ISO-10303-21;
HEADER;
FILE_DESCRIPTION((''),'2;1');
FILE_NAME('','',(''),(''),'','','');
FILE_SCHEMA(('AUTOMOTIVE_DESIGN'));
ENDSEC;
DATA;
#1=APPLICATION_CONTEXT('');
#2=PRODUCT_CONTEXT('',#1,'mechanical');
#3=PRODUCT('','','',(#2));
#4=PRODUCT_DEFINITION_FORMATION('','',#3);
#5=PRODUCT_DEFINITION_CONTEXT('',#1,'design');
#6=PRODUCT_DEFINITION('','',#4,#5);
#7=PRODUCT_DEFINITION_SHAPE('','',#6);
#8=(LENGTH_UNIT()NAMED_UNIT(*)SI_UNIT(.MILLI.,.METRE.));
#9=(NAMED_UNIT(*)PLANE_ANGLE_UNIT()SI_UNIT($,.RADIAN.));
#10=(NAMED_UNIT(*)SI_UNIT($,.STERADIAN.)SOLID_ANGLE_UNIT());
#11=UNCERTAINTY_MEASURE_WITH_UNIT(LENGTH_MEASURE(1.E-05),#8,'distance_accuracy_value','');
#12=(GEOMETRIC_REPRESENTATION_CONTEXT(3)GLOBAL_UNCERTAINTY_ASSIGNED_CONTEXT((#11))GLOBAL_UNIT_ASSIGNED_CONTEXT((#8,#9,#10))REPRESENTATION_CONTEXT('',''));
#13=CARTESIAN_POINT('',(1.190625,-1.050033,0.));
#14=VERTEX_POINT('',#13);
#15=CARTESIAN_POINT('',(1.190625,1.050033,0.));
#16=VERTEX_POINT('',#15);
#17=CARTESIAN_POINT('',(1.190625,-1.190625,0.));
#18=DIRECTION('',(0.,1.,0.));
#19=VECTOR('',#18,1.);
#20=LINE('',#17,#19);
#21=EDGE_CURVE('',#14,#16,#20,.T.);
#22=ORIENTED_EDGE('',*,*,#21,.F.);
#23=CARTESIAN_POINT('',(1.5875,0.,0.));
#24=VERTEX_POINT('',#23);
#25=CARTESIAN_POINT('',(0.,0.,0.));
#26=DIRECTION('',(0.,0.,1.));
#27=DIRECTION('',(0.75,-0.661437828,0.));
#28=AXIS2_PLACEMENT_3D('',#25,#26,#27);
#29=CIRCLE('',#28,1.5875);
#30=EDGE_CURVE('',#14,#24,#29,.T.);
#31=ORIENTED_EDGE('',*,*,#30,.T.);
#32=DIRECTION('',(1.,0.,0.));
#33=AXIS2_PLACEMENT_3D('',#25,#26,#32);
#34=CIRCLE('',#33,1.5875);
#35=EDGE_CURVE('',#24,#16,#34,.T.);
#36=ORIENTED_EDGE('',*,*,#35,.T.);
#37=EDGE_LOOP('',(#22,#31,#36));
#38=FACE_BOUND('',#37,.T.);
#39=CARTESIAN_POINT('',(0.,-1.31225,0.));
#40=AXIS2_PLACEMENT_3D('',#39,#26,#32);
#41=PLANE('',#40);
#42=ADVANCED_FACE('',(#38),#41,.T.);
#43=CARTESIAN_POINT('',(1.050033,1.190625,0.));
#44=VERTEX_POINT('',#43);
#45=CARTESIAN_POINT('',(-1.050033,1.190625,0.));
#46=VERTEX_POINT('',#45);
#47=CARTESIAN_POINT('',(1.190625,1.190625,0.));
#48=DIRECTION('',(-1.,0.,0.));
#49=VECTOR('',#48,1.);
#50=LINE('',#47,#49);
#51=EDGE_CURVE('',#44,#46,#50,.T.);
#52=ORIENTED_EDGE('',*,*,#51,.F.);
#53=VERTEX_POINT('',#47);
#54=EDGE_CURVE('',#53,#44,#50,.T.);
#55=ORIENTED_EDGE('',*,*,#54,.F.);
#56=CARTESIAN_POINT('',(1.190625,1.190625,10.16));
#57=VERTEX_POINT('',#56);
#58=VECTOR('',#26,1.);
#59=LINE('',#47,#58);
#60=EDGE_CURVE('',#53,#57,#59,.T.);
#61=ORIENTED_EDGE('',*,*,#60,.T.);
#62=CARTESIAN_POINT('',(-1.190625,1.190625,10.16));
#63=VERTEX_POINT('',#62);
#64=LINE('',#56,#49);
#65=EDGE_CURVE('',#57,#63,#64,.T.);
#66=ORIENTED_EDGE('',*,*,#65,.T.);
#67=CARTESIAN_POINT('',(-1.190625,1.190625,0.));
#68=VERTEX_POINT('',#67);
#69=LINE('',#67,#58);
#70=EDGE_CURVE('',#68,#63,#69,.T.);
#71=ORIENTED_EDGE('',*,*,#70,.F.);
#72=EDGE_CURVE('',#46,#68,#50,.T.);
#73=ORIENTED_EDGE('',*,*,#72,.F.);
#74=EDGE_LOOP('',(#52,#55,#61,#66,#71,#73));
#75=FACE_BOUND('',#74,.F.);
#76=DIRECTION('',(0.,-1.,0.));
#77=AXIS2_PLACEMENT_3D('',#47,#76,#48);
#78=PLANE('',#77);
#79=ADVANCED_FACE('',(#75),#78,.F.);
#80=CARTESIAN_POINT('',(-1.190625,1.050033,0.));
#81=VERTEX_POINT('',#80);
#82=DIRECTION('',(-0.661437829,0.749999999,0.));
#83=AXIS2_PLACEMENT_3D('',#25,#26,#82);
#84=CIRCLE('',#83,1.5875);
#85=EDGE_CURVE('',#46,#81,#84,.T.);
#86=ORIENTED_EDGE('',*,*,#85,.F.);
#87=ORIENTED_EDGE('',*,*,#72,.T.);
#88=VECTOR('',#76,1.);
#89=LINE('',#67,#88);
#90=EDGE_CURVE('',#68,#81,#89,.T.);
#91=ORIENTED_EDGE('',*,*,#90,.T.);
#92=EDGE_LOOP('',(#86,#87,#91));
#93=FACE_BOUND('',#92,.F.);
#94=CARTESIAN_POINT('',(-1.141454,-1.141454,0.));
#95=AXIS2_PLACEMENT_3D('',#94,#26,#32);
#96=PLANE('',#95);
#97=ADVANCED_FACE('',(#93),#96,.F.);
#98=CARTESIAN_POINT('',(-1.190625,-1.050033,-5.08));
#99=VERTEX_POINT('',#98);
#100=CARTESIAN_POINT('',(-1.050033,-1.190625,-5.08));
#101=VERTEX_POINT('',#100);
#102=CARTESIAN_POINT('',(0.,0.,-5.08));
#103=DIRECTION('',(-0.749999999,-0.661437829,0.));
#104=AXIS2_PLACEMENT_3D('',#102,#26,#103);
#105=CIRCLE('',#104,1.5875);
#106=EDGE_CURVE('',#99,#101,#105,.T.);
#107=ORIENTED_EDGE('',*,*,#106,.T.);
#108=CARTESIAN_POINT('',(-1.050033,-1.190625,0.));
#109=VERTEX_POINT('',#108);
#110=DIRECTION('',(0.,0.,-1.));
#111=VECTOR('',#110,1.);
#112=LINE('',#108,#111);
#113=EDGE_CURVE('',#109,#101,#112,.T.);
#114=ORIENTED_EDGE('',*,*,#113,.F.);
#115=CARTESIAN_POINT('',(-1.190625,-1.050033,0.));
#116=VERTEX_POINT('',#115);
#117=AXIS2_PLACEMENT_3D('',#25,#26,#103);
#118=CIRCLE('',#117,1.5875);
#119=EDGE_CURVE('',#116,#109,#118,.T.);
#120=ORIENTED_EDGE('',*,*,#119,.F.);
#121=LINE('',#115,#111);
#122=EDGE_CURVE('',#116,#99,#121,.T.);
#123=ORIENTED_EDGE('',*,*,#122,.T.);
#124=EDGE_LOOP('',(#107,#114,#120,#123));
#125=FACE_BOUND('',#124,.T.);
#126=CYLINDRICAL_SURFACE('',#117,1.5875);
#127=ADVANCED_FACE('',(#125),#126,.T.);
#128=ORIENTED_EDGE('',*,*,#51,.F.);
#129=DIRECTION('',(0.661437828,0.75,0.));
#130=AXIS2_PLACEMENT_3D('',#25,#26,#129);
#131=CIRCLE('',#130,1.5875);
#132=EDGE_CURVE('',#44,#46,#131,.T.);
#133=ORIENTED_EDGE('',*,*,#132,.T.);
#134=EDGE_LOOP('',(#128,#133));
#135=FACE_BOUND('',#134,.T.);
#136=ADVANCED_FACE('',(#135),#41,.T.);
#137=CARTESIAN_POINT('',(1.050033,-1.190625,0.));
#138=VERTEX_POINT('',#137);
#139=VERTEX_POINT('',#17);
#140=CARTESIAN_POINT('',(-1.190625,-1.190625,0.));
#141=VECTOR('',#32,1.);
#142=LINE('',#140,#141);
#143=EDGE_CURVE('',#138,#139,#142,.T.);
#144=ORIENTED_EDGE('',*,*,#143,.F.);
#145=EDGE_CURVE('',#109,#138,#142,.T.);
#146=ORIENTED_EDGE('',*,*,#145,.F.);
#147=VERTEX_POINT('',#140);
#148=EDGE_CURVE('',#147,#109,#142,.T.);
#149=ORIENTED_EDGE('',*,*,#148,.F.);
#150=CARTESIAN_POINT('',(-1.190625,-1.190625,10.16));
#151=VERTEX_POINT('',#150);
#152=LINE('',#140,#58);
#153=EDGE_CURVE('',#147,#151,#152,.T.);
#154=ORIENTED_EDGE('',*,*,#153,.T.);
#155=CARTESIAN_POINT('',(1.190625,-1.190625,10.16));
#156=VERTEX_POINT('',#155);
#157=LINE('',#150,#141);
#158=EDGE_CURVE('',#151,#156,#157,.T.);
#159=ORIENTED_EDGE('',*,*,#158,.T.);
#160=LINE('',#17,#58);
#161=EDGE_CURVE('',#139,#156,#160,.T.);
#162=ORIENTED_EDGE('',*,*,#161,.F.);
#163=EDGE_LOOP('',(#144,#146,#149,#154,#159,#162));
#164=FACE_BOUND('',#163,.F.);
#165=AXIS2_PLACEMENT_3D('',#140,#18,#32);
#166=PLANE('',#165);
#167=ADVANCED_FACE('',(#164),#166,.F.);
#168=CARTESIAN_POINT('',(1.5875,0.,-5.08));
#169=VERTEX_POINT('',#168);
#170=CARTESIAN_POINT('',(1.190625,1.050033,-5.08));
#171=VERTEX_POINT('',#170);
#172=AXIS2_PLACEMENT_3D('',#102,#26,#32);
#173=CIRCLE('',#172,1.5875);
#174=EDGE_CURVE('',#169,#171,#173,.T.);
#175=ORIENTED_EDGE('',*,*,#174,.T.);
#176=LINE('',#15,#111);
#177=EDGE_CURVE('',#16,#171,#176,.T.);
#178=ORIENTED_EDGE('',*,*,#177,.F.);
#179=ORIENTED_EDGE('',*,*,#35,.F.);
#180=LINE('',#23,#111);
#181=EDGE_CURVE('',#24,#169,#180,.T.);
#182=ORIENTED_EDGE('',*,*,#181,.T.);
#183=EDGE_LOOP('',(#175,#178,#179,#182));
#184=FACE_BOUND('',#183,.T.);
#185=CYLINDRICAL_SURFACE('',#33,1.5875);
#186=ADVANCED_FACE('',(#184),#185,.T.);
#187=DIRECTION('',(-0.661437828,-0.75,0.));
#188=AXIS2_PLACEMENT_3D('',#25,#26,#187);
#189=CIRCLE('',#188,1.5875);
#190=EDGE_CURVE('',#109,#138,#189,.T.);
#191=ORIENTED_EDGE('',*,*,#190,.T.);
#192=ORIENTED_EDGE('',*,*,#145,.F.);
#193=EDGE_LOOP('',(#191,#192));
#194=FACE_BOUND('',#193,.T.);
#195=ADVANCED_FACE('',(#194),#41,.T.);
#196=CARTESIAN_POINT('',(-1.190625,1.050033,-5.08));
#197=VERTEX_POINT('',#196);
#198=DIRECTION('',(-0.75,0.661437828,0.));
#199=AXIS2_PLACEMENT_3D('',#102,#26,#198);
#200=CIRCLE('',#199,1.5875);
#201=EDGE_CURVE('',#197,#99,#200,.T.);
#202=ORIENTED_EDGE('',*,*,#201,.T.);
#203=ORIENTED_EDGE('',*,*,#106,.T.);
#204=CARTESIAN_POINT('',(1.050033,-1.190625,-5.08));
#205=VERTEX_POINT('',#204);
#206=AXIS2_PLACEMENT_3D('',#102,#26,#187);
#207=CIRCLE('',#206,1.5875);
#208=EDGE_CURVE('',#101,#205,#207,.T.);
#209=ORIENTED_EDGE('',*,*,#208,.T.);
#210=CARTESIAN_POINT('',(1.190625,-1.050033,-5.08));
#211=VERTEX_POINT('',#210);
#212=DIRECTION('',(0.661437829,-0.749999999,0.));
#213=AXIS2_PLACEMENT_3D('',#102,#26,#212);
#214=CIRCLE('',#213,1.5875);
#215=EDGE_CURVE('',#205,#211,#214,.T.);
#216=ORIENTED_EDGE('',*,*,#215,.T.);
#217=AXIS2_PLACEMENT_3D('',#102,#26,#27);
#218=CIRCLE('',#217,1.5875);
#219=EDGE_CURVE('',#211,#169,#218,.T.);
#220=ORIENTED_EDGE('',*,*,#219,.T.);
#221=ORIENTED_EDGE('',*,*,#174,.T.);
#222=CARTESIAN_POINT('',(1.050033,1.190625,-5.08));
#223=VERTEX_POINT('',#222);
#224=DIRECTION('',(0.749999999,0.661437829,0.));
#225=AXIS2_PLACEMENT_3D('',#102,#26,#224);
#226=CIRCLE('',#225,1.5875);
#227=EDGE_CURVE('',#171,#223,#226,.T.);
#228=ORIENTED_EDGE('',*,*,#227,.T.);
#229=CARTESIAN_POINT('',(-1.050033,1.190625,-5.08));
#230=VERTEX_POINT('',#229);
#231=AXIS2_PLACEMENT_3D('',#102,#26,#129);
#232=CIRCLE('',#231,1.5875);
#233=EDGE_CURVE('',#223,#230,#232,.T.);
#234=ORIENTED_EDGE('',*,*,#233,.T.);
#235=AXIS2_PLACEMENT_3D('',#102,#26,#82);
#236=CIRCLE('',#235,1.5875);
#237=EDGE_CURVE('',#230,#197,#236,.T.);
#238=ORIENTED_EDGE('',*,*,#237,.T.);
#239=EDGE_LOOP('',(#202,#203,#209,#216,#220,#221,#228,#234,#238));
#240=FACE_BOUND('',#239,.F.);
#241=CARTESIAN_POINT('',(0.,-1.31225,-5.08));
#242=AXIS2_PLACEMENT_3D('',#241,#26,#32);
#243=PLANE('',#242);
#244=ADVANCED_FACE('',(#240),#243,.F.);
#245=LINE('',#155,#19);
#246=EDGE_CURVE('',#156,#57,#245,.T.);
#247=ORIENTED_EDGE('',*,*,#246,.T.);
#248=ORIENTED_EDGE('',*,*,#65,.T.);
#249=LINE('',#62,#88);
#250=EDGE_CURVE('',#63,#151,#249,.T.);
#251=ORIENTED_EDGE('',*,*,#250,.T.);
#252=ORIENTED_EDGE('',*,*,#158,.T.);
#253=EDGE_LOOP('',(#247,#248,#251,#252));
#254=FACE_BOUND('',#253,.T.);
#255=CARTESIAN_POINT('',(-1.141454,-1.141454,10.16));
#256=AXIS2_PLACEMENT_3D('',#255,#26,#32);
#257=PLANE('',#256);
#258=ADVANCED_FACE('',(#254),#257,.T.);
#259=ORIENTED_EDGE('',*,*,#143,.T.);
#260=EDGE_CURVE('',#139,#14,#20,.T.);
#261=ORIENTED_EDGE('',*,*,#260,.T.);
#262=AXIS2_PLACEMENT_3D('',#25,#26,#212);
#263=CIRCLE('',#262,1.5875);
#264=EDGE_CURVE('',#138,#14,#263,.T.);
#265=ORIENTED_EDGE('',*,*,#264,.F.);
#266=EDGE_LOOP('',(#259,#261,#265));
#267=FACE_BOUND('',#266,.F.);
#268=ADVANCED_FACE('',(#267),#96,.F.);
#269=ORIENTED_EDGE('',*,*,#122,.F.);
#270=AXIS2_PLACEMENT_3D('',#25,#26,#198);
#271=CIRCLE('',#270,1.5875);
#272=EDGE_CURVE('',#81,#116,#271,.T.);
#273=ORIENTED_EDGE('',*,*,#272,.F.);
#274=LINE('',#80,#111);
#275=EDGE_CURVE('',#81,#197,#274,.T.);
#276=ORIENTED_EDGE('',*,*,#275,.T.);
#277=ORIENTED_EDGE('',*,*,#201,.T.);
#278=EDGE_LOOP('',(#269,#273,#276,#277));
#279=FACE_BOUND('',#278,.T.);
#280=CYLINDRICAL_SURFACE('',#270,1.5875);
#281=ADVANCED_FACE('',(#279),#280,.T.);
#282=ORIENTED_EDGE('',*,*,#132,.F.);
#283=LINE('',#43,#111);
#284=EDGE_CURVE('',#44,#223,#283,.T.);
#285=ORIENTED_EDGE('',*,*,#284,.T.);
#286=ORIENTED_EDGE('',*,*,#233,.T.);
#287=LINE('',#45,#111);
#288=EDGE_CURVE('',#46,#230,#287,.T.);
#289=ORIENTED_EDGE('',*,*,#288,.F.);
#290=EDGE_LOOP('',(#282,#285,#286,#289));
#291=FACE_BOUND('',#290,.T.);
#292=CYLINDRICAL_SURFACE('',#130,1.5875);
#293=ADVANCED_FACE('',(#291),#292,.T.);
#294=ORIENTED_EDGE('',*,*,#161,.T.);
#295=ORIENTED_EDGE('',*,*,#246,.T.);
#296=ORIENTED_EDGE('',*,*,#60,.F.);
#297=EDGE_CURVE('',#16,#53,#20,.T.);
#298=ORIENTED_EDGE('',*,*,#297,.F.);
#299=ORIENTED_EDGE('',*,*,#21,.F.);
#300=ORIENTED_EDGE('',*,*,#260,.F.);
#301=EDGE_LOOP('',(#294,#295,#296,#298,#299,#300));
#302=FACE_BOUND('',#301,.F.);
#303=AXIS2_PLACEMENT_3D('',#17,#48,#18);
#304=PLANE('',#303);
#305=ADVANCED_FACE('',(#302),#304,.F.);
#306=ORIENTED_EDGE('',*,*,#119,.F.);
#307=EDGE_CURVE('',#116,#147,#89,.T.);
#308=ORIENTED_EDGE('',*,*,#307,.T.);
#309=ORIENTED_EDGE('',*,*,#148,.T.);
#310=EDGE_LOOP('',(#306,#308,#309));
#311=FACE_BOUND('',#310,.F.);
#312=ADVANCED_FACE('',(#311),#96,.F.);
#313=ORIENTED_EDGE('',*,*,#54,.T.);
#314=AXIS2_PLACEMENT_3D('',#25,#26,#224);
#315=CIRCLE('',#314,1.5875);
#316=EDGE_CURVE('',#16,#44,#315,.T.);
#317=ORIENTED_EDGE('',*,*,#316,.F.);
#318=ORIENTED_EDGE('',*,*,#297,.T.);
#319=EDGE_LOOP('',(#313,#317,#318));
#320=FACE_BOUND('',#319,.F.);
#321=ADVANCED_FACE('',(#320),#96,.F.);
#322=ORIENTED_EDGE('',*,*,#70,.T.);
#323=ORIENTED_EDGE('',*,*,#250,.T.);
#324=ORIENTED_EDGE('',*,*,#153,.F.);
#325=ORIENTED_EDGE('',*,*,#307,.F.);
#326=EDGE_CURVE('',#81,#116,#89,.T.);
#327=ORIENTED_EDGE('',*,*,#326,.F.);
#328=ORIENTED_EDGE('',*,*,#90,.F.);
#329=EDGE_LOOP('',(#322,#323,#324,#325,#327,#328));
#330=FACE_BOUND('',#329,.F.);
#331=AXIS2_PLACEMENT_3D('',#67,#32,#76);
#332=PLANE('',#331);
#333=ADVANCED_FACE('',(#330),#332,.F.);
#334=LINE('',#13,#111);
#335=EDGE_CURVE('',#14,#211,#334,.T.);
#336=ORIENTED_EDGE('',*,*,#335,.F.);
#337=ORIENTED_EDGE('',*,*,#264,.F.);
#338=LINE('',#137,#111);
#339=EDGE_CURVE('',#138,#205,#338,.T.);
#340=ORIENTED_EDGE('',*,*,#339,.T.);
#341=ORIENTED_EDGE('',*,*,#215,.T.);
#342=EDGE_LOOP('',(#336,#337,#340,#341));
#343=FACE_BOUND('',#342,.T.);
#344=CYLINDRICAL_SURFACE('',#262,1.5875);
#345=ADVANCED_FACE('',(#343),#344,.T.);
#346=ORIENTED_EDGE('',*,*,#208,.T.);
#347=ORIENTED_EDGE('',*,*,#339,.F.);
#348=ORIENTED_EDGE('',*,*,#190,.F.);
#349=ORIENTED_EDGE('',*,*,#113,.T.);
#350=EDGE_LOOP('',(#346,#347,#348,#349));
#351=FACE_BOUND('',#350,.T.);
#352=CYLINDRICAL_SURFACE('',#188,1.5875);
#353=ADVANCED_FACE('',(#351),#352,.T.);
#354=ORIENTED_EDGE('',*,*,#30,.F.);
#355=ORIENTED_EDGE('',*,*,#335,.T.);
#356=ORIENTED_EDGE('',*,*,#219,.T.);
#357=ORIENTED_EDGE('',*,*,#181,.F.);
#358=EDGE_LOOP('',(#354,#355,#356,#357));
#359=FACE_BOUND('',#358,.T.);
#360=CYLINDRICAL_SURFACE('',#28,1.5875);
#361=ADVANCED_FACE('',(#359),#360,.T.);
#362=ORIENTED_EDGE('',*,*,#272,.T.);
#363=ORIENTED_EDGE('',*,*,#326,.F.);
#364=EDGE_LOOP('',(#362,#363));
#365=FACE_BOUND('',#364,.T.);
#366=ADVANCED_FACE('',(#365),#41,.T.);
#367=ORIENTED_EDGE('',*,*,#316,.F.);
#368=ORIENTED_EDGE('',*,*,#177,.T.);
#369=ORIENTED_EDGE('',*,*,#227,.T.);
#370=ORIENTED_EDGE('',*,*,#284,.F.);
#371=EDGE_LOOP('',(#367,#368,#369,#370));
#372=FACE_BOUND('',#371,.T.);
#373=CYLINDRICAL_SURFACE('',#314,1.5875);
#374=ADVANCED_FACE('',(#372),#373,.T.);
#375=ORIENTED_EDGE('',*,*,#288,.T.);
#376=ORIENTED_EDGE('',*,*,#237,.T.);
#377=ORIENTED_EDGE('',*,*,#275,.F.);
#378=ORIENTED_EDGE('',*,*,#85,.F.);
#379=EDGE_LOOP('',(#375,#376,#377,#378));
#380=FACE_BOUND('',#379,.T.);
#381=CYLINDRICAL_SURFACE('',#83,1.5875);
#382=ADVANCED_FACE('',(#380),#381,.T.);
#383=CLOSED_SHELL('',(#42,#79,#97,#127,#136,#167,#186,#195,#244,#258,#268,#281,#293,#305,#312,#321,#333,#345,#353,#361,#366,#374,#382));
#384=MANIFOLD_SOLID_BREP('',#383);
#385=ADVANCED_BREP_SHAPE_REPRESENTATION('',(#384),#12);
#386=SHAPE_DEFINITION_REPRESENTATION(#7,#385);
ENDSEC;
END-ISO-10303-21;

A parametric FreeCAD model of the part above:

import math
import FreeCAD as App
import Part
import Sketcher
from FreeCAD import Vector
Q = App.Units.Quantity


def add_polygon(sketch, points):
    """Adds a closed chain of lines whose ends are joined by coincident constraints."""
    first, n = sketch.GeometryCount, len(points)
    for a, b in zip(points, points[1:] + points[:1]):
        sketch.addGeometry(Part.LineSegment(App.Vector(*a, 0), App.Vector(*b, 0)), False)
    for i in range(n):
        sketch.addConstraint(Sketcher.Constraint("Coincident", first + i, 2, first + (i + 1) % n, 1))

doc = App.newDocument("Part")
body = doc.addObject("PartDesign::Body", "Body")

sketch1 = body.newObject("Sketcher::SketchObject", "Sketch")
sketch1.AttachmentSupport = (doc.getObject("XY_Plane"), [""])
sketch1.MapMode = "FlatFace"
add_polygon(sketch1, [(-1.2, -1.2), (1.2, -1.2), (1.2, 1.2), (-1.2, 1.2)])
sketch1.addConstraint([
    Sketcher.Constraint("Horizontal", 0),
    Sketcher.Constraint("Vertical", 1),
    Sketcher.Constraint("Horizontal", 2),
    Sketcher.Constraint("Vertical", 3),
    Sketcher.Constraint("Symmetric", 0, 2, 2, 2, -1, 1),
    Sketcher.Constraint("Equal", 2, 1),
    Sketcher.Constraint("DistanceX", 0, 1, 0, 2, Q("0.09375 in")),
])
pad1 = body.newObject("PartDesign::Pad", "Pad")
pad1.Profile = sketch1
pad1.Length = Q("0.4 in")

sketch2 = body.newObject("Sketcher::SketchObject", "Sketch001")
sketch2.AttachmentSupport = (doc.getObject("XY_Plane"), [""])
sketch2.MapMode = "FlatFace"
sketch2.addGeometry([
    Part.ArcOfCircle(Part.Circle(Vector(0, 0, 0), Vector(0, 0, 1), 1.59), math.radians(-131), math.radians(-49)),
    Part.ArcOfCircle(Part.Circle(Vector(0, 0, 0), Vector(0, 0, 1), 1.59), math.radians(-48.59), math.radians(-41.41)),
    Part.ArcOfCircle(Part.Circle(Vector(0, 0, 0), Vector(0, 0, 1), 1.59), math.radians(-41), math.radians(0)),
    Part.ArcOfCircle(Part.Circle(Vector(0, 0, 0), Vector(0, 0, 1), 1.59), math.radians(0), math.radians(41)),
    Part.ArcOfCircle(Part.Circle(Vector(0, 0, 0), Vector(0, 0, 1), 1.59), math.radians(41.41), math.radians(48.59)),
    Part.ArcOfCircle(Part.Circle(Vector(0, 0, 0), Vector(0, 0, 1), 1.59), math.radians(49), math.radians(131)),
    Part.ArcOfCircle(Part.Circle(Vector(0, 0, 0), Vector(0, 0, 1), 1.59), math.radians(131.41), math.radians(138.59)),
    Part.ArcOfCircle(Part.Circle(Vector(0, 0, 0), Vector(0, 0, 1), 1.59), math.radians(139), math.radians(221)),
    Part.ArcOfCircle(Part.Circle(Vector(0, 0, 0), Vector(0, 0, 1), 1.59), math.radians(-138.59), math.radians(-131.41)),
], False)
sketch2.addConstraint([
    Sketcher.Constraint("Tangent", 0, 2, 1, 1),
    Sketcher.Constraint("Tangent", 1, 2, 2, 1),
    Sketcher.Constraint("Tangent", 2, 2, 3, 1),
    Sketcher.Constraint("Tangent", 3, 2, 4, 1),
    Sketcher.Constraint("Tangent", 4, 2, 5, 1),
    Sketcher.Constraint("Tangent", 5, 2, 6, 1),
    Sketcher.Constraint("Tangent", 6, 2, 7, 1),
    Sketcher.Constraint("Tangent", 7, 2, 8, 1),
    Sketcher.Constraint("Tangent", 8, 2, 0, 1),
    Sketcher.Constraint("Coincident", 0, 3, -1, 1),
    Sketcher.Constraint("Coincident", 2, 3, -1, 1),
    Sketcher.Constraint("Coincident", 4, 3, -1, 1),
    Sketcher.Constraint("Coincident", 6, 3, -1, 1),
    Sketcher.Constraint("PointOnObject", 2, 2, -1),
    Sketcher.Constraint("Horizontal", 4, 2, 5, 2),
    Sketcher.Constraint("Horizontal", 3, 2, 6, 2),
    Sketcher.Constraint("Horizontal", 1, 2, 7, 2),
    Sketcher.Constraint("Horizontal", 0, 2, 8, 2),
    Sketcher.Constraint("Vertical", 1, 2, 3, 2),
    Sketcher.Constraint("Vertical", 0, 2, 4, 2),
    Sketcher.Constraint("Radius", 0, Q("0.0625 in")),
    Sketcher.Constraint("DistanceY", 0, 2, -1, 1, Q("0.046875 in")),
    Sketcher.Constraint("DistanceX", -1, 1, 1, 2, Q("0.046875 in")),
])
pad2 = body.newObject("PartDesign::Pad", "Pad001")
pad2.Profile = sketch2
pad2.Length = Q("0.2 in")
pad2.Reversed = True

doc.recompute()
